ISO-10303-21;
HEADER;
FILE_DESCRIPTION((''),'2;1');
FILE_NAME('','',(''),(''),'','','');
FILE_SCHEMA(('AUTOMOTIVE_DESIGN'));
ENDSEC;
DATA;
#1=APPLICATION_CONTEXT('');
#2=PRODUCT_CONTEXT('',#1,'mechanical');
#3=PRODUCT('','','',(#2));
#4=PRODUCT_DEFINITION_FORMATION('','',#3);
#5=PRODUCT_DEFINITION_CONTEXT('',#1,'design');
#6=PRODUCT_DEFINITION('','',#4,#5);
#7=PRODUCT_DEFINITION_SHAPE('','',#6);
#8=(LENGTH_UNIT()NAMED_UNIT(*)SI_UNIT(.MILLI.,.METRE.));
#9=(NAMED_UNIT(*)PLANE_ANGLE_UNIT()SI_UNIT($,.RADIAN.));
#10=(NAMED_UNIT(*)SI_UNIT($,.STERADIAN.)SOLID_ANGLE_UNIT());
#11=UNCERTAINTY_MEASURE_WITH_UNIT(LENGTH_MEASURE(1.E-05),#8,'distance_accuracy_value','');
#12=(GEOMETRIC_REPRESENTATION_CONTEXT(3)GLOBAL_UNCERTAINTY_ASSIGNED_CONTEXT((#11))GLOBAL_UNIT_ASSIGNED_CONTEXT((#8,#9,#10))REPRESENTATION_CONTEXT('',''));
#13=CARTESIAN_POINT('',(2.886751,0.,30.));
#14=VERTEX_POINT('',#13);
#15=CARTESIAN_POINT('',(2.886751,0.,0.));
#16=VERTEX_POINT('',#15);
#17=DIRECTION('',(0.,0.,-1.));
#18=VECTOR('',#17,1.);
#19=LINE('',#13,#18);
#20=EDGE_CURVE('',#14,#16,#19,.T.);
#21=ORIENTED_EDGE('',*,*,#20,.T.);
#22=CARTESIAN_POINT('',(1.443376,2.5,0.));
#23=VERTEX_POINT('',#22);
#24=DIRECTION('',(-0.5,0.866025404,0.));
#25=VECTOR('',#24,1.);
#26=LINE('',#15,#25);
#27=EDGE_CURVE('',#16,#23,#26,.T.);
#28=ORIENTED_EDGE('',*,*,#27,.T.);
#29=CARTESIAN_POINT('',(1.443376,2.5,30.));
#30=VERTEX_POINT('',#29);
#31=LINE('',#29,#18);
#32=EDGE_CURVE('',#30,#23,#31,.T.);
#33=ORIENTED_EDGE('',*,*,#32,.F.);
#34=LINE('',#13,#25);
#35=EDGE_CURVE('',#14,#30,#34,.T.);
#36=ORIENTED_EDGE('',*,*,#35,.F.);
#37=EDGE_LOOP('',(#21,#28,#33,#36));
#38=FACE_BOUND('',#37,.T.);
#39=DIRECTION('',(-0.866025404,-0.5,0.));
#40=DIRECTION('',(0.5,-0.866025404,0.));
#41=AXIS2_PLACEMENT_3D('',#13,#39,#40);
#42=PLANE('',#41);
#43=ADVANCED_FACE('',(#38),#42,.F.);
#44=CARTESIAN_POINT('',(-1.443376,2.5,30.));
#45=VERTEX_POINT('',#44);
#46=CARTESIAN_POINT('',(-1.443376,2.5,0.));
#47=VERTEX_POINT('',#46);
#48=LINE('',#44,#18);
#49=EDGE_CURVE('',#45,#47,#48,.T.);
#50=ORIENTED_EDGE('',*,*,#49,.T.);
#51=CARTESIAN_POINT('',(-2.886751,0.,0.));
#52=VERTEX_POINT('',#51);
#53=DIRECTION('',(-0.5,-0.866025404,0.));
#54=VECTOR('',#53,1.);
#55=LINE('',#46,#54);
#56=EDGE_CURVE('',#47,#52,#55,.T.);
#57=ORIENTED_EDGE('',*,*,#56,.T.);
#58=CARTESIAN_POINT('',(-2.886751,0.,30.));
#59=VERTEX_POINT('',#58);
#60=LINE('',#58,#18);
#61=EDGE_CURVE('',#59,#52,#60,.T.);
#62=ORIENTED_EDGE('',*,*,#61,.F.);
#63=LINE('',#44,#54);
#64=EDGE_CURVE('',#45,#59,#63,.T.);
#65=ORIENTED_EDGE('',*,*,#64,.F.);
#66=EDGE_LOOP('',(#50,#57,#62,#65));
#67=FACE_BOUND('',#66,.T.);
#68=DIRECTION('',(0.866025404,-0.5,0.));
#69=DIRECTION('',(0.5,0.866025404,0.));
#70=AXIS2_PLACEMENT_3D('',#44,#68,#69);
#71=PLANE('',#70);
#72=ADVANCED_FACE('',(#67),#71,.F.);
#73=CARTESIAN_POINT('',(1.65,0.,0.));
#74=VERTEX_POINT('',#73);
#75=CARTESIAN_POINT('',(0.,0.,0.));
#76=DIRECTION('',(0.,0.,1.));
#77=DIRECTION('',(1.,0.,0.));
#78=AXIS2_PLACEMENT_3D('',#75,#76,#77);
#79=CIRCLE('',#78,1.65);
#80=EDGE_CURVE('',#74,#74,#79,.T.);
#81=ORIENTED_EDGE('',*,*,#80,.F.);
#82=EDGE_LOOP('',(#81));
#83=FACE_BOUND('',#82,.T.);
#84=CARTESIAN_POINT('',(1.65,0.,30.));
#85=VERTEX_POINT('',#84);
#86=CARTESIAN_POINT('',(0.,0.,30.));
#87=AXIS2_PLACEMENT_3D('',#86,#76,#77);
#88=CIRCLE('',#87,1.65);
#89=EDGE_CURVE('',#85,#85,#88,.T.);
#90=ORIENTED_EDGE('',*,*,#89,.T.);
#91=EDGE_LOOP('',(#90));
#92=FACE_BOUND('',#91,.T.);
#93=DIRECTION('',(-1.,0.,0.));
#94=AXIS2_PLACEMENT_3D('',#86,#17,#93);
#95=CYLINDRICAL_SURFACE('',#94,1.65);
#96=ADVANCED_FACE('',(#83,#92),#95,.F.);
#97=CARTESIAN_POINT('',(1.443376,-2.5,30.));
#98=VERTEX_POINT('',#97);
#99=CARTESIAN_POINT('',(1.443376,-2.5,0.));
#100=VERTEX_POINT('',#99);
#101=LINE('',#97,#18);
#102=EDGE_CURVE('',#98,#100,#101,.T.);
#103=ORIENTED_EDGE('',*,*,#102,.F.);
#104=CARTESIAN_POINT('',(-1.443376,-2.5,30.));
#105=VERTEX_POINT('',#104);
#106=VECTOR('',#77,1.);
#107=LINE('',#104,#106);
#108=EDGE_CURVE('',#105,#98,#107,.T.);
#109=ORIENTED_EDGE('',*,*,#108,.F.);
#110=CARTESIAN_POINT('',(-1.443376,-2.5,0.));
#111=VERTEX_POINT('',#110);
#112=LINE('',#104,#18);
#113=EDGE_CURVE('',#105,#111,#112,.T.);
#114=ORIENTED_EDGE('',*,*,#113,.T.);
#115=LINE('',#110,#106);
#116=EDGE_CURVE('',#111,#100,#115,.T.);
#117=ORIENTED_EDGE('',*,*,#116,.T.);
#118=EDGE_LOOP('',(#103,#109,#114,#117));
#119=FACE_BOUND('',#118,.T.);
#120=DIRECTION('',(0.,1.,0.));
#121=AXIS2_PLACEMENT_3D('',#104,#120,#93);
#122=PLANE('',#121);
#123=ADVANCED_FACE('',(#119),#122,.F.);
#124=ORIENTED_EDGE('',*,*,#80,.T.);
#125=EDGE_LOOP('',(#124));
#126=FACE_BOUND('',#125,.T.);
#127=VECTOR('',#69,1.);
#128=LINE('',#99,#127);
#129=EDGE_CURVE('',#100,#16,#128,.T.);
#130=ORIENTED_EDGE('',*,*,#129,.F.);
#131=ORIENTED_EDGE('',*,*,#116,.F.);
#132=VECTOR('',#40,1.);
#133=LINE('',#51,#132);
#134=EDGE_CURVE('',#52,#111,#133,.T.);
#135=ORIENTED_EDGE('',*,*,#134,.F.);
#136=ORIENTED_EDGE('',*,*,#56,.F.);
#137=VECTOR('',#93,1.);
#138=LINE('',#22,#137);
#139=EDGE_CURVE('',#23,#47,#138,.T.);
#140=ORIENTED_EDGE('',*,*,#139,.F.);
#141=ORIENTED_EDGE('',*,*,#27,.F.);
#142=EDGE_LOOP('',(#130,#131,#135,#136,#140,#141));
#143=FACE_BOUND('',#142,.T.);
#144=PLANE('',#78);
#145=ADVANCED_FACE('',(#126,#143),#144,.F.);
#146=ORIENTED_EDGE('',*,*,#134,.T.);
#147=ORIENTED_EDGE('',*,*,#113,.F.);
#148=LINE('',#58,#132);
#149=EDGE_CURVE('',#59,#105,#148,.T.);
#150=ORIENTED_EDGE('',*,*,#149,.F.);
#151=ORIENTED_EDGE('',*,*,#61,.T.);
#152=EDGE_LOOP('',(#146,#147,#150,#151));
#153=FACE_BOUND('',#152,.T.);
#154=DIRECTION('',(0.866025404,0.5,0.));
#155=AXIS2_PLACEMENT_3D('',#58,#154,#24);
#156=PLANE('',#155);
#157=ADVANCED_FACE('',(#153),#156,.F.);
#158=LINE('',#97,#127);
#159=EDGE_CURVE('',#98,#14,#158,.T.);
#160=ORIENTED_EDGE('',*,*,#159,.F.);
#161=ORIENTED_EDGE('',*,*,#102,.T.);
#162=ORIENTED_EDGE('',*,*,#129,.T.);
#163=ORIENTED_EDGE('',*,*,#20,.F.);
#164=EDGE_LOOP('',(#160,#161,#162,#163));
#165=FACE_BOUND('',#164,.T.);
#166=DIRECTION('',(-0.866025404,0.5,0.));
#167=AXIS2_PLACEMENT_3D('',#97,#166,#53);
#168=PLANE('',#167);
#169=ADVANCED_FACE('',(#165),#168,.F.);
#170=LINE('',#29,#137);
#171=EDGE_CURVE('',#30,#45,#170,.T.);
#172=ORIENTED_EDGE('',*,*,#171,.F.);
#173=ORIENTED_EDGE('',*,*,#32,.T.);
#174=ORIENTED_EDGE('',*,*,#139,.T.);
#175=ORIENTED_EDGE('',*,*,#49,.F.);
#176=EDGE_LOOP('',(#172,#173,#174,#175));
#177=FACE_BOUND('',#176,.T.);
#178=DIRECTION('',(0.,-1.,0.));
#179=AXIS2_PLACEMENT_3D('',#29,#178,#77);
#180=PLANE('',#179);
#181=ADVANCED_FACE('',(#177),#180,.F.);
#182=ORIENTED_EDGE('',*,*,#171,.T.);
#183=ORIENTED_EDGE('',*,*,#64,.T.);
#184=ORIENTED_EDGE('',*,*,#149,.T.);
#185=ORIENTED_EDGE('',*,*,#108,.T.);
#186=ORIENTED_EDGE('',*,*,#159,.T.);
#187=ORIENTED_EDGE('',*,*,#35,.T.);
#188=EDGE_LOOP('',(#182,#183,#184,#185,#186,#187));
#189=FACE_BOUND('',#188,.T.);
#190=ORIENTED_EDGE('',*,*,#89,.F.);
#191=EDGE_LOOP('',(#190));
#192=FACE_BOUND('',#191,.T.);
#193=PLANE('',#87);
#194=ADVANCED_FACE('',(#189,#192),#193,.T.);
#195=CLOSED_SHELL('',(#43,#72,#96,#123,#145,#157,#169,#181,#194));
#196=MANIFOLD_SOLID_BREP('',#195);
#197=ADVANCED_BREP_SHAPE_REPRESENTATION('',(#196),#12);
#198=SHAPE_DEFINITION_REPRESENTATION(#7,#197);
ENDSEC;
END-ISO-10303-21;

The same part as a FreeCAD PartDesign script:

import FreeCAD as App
import Part
import Sketcher
from FreeCAD import Vector
Q = App.Units.Quantity

doc = App.newDocument("Part")
params = doc.addObject("Spreadsheet::Sheet", "Params")
for row, (alias, value) in enumerate([
    ("sketch1_diameter", "3.3 mm"),
    ("pad1_length", "30 mm"),
], start=1):
    params.set(f"A{row}", alias)
    params.set(f"B{row}", "=" + value)
    params.setAlias(f"B{row}", alias)

body = doc.addObject("PartDesign::Body", "Body")

# Sketch on XY plane
sketch1 = body.newObject("Sketcher::SketchObject", "Sketch")
sketch1.AttachmentSupport = (doc.getObject("XY_Plane"), [""])
sketch1.MapMode = "FlatFace"
sketch1.addGeometry(Part.LineSegment(Vector(2.9, 0, 0), Vector(1.4, 2.5, 0)), False)
sketch1.addGeometry(Part.LineSegment(Vector(1.4, 2.5, 0), Vector(-1.4, 2.5, 0)), False)
sketch1.addGeometry(Part.LineSegment(Vector(-1.4, 2.5, 0), Vector(-2.9, 0, 0)), False)
sketch1.addGeometry(Part.LineSegment(Vector(-2.9, 0, 0), Vector(-1.4, -2.5, 0)), False)
sketch1.addGeometry(Part.LineSegment(Vector(-1.4, -2.5, 0), Vector(1.4, -2.5, 0)), False)
sketch1.addGeometry(Part.LineSegment(Vector(1.4, -2.5, 0), Vector(2.9, 0, 0)), False)
sketch1.addGeometry(Part.Circle(Vector(0, 0, 0), Vector(0, 0, 1), 1.6), False)
sketch1.addConstraint(Sketcher.Constraint("Coincident", 0, 2, 1, 1))
sketch1.addConstraint(Sketcher.Constraint("Coincident", 1, 2, 2, 1))
sketch1.addConstraint(Sketcher.Constraint("Coincident", 2, 2, 3, 1))
sketch1.addConstraint(Sketcher.Constraint("Coincident", 3, 2, 4, 1))
sketch1.addConstraint(Sketcher.Constraint("Coincident", 4, 2, 5, 1))
sketch1.addConstraint(Sketcher.Constraint("Coincident", 5, 2, 0, 1))
sketch1.addConstraint(Sketcher.Constraint("Horizontal", 1))
sketch1.addConstraint(Sketcher.Constraint("Horizontal", 4))
sketch1.addConstraint(Sketcher.Constraint("Coincident", 6, 3, -1, 1))
sketch1.addConstraint(Sketcher.Constraint("Symmetric", 0, 2, 3, 2, -1, 1))
sketch1.addConstraint(Sketcher.Constraint("Symmetric", 2, 2, 5, 2, -1, 1))
sketch1.addConstraint(Sketcher.Constraint("PointOnObject", 2, 2, -1))
sketch1.addConstraint(Sketcher.Constraint("Parallel", 2, 5))
sketch1.addConstraint(Sketcher.Constraint("Vertical", 1, 2, 3, 2))
sketch1.addConstraint(Sketcher.Constraint("Diameter", 6, 3.3))
sketch1.addConstraint(Sketcher.Constraint("Angle", 0, Q("120 deg")))
sketch1.addConstraint(Sketcher.Constraint("DistanceY", 3, 2, 1, 2, 5.0))
sketch1.addConstraint(Sketcher.Constraint("DistanceX", 1, 2, 1, 1, 2.886751))
sketch1.setExpression("Constraints[14]", "Params.sketch1_diameter")
pad1 = body.newObject("PartDesign::Pad", "Pad")
pad1.Profile = sketch1
pad1.setExpression("Length", "Params.pad1_length")

doc.recompute()
